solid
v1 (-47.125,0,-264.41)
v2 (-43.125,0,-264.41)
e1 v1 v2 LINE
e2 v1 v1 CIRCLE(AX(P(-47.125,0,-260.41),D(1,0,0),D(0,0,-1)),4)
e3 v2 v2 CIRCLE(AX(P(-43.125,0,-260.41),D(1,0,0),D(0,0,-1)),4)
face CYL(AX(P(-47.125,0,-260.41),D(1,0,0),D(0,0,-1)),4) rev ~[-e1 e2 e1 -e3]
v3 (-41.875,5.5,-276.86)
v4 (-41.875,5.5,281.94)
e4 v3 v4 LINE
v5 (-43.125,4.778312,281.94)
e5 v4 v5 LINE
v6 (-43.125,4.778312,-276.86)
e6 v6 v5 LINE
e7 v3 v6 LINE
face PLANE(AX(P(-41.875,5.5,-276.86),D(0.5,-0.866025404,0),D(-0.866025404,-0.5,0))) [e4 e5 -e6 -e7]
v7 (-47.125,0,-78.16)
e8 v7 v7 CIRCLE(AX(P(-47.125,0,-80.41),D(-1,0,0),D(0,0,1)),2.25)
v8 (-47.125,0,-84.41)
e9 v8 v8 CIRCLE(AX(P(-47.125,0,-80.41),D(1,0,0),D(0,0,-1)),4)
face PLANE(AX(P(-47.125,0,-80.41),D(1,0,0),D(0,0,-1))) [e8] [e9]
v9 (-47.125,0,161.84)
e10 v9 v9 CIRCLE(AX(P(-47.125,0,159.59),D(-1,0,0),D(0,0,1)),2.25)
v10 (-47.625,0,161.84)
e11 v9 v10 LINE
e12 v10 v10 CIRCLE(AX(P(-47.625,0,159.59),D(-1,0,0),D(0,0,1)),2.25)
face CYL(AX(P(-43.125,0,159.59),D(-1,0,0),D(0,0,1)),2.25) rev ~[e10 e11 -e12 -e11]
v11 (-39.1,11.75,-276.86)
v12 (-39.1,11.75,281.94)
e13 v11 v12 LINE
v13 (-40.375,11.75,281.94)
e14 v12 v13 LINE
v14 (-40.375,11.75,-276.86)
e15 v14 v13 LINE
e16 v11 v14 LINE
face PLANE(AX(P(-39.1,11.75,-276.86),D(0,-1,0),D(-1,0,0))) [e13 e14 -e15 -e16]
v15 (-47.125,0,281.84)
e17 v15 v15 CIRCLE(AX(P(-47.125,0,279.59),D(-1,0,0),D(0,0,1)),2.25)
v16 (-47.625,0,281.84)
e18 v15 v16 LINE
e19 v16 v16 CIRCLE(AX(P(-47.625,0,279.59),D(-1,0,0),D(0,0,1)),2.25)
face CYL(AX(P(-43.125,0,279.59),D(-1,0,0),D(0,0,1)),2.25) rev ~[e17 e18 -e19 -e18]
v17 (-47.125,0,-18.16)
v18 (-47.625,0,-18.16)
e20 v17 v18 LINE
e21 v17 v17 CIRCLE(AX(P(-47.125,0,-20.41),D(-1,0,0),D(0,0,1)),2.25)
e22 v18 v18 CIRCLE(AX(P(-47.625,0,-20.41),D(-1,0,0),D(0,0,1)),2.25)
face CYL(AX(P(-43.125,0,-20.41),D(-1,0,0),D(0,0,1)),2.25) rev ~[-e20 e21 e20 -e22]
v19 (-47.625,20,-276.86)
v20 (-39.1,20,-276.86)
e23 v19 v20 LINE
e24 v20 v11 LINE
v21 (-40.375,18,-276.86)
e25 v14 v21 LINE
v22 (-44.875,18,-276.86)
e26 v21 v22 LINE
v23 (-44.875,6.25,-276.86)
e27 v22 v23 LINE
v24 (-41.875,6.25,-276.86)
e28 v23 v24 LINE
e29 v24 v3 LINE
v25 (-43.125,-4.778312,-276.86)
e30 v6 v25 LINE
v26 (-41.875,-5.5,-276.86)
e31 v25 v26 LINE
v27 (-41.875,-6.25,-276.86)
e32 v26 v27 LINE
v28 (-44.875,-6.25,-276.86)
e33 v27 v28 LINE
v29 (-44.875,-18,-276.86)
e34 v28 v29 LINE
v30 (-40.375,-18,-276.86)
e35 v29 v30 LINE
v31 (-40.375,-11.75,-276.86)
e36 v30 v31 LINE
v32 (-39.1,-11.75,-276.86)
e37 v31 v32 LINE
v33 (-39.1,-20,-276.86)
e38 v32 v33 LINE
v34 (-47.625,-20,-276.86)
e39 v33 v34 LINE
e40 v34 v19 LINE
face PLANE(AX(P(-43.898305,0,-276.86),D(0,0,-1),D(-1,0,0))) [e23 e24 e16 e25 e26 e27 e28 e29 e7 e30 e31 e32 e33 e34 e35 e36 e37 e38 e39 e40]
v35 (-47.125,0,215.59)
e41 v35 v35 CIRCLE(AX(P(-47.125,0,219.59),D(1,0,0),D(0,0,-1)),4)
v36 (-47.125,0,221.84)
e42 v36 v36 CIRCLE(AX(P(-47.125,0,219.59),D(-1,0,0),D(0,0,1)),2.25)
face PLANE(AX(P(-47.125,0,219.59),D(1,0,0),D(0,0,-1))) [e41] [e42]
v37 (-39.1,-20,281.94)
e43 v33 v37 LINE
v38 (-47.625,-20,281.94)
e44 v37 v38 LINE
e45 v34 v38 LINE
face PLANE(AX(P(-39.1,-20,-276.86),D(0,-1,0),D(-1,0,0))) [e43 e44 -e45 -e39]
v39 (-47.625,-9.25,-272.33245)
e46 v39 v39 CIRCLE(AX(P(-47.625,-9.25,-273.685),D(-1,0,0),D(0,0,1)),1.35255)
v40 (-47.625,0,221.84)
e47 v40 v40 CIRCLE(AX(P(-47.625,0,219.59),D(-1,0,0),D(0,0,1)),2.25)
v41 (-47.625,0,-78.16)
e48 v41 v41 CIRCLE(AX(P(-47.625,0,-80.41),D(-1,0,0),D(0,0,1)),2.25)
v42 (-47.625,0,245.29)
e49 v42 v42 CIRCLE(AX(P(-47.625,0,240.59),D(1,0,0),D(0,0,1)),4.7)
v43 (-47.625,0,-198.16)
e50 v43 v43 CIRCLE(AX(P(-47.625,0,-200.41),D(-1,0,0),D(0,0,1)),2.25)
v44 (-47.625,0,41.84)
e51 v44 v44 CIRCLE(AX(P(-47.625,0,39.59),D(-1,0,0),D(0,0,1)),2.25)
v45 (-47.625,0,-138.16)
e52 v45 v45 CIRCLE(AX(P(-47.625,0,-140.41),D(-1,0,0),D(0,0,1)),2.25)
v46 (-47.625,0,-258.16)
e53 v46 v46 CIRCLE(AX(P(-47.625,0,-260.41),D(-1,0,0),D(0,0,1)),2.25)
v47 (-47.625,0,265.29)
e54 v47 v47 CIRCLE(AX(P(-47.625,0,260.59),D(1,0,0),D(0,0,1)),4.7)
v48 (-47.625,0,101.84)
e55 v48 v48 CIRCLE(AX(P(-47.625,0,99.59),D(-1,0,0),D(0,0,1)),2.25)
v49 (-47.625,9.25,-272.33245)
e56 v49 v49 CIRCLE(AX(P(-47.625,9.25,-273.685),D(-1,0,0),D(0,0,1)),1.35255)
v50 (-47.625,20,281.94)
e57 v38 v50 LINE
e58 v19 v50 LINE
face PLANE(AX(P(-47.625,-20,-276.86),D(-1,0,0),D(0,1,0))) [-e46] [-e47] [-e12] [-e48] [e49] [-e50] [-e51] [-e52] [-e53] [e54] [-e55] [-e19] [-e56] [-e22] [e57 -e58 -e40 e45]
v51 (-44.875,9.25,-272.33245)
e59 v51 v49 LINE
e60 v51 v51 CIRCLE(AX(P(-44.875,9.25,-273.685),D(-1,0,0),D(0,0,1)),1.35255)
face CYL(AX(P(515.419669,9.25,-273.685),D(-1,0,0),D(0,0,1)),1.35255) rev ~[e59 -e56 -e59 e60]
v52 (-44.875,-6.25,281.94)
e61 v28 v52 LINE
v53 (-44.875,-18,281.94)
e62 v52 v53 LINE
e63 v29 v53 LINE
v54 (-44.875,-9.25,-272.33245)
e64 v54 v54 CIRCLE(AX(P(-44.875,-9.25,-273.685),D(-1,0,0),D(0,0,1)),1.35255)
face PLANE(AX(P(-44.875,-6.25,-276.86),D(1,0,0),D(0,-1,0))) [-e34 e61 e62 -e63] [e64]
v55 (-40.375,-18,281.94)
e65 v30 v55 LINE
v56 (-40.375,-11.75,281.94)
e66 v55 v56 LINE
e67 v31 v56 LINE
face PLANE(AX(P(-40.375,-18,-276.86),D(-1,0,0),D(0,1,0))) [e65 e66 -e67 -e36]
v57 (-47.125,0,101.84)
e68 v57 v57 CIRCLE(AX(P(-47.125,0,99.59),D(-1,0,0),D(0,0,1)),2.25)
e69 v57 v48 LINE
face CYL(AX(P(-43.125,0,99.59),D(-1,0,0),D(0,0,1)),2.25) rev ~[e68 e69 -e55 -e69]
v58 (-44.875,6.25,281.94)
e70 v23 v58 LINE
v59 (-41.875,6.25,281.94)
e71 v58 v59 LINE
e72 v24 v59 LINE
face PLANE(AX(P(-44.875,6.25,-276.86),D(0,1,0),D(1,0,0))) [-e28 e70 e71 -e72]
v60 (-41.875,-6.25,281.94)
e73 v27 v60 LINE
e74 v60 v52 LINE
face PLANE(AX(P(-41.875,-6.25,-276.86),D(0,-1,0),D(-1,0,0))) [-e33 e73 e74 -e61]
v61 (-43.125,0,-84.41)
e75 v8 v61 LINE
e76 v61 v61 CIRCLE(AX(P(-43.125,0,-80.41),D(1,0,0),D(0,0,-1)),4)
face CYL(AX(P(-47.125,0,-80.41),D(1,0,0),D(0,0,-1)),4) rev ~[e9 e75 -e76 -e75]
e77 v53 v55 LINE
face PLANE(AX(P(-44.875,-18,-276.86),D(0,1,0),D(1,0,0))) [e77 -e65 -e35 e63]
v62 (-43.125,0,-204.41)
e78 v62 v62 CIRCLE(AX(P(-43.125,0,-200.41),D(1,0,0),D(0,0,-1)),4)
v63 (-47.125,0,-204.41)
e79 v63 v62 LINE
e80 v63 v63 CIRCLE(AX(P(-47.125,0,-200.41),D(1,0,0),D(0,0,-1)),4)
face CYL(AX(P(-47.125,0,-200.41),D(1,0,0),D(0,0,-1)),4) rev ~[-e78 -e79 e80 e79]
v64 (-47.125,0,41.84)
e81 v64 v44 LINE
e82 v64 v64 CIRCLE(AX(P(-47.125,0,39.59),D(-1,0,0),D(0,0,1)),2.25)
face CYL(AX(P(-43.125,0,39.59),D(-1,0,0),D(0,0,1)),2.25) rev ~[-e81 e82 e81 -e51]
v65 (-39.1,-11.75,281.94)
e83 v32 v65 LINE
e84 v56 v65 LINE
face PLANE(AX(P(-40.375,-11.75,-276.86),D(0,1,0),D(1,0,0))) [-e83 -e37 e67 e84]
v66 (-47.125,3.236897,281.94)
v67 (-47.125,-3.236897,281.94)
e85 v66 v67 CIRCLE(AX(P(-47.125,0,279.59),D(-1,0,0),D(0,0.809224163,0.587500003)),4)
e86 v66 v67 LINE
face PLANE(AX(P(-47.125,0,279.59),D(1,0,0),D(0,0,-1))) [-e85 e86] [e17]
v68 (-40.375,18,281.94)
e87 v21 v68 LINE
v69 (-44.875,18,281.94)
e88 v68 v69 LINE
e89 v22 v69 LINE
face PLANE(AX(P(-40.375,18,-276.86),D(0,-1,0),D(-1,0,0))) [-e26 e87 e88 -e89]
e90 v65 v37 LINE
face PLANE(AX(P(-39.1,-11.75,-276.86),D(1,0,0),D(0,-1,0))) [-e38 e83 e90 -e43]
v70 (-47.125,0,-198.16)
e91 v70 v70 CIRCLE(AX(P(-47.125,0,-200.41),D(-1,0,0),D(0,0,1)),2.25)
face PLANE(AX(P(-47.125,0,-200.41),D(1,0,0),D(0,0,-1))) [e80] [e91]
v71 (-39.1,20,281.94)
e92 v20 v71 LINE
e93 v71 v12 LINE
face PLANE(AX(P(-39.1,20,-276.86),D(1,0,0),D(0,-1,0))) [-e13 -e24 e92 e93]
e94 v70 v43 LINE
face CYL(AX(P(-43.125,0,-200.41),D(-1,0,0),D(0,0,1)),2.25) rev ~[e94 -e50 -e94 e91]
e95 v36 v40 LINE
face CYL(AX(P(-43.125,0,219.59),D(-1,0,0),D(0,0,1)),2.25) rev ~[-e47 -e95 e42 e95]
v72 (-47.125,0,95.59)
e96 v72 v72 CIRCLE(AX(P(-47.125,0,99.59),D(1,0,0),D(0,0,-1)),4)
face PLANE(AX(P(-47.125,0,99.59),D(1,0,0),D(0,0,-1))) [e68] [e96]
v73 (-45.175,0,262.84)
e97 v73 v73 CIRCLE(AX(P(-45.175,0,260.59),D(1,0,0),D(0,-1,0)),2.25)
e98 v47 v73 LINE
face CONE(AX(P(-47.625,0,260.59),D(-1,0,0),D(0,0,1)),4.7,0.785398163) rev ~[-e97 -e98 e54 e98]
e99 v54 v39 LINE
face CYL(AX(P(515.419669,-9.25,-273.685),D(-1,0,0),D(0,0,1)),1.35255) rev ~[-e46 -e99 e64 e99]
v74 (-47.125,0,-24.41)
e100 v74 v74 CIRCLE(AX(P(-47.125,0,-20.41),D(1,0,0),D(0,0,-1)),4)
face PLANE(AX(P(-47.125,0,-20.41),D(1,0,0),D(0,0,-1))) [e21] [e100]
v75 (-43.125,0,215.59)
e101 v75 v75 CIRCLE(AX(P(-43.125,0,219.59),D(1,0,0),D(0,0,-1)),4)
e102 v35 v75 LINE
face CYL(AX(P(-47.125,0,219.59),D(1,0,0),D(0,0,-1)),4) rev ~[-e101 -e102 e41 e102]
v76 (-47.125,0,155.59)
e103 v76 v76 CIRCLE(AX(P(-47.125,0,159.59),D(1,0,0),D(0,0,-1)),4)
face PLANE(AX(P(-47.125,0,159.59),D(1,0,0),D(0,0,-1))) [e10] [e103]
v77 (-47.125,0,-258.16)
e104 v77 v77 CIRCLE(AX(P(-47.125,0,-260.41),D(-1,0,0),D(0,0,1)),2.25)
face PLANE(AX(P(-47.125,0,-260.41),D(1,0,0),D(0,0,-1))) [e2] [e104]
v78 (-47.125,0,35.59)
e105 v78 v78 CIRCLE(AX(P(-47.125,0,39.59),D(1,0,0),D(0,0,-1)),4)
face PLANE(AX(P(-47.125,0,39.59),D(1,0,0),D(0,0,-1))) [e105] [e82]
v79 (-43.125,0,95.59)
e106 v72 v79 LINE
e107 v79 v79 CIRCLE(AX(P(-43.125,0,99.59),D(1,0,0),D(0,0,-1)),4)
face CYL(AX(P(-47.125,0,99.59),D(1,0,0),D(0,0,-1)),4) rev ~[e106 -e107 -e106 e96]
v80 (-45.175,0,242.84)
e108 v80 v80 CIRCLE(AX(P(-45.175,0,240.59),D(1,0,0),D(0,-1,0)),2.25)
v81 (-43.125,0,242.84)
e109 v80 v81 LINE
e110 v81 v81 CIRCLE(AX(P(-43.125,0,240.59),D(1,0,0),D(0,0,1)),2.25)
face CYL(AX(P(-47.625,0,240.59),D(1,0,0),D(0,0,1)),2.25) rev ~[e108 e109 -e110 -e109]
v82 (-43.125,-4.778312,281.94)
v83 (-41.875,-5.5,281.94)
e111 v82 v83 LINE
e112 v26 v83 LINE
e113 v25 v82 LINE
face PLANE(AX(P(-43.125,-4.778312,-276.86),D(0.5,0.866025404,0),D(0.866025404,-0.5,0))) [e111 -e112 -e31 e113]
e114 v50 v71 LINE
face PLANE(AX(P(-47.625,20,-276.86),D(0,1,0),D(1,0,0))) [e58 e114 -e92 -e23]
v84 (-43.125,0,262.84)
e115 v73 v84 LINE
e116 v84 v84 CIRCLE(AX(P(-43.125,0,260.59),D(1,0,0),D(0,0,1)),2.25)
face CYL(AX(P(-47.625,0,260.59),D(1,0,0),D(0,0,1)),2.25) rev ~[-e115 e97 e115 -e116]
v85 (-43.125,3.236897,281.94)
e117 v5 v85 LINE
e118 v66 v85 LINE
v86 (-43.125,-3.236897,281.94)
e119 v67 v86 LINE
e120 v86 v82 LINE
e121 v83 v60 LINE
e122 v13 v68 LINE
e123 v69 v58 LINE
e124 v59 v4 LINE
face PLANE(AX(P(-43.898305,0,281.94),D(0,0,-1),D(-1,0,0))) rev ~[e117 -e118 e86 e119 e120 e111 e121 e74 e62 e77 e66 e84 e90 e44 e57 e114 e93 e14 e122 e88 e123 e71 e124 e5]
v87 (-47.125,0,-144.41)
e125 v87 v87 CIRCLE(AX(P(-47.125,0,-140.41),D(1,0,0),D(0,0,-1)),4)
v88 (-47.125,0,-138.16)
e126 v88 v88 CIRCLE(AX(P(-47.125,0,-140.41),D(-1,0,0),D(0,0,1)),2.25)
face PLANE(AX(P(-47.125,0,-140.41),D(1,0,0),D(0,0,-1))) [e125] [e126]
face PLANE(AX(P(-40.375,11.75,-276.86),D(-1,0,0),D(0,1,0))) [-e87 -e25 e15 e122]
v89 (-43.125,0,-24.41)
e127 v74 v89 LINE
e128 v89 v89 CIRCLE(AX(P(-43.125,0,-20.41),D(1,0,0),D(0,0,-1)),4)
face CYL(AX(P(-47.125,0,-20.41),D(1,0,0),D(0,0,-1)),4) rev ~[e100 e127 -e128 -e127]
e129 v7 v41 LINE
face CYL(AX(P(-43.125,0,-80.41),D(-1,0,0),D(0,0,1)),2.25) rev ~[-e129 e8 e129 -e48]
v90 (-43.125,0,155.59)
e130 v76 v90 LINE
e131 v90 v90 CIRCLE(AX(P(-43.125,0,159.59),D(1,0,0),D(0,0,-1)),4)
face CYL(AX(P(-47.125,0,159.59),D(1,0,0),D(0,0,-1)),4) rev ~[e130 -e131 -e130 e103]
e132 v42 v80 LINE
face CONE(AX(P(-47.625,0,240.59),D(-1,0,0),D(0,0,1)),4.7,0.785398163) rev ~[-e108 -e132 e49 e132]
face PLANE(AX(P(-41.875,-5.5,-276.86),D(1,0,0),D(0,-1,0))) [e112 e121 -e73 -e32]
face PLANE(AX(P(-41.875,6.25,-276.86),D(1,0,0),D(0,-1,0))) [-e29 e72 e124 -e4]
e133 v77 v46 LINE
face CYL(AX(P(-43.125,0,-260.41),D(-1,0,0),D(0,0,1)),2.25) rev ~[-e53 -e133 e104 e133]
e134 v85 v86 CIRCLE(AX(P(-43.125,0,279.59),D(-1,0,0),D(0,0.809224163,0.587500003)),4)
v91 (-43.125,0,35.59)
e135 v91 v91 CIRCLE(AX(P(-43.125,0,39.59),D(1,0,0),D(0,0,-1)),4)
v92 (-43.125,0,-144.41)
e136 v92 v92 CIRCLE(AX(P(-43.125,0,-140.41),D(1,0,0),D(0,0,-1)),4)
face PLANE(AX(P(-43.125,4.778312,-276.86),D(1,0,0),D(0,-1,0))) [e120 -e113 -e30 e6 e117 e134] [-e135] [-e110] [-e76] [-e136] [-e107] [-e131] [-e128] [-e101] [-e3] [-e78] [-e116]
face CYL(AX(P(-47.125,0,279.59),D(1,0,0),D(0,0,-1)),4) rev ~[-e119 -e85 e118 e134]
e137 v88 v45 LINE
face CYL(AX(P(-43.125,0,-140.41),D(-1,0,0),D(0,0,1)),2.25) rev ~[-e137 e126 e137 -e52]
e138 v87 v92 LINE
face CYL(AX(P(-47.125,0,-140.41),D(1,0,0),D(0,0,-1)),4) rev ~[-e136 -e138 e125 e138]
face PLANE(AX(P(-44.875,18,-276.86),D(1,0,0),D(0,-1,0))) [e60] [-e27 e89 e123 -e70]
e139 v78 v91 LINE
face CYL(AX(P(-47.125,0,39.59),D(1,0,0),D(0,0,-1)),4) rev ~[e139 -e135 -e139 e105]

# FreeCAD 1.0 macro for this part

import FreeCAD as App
import Part
import Sketcher
from FreeCAD import Vector
Q = App.Units.Quantity


def add_polygon(sketch, points):
    """Adds a closed chain of lines whose ends are joined by coincident constraints."""
    first, n = sketch.GeometryCount, len(points)
    for a, b in zip(points, points[1:] + points[:1]):
        sketch.addGeometry(Part.LineSegment(App.Vector(*a, 0), App.Vector(*b, 0)), False)
    for i in range(n):
        sketch.addConstraint(Sketcher.Constraint("Coincident", first + i, 2, first + (i + 1) % n, 1))

doc = App.newDocument("Part")
body = doc.addObject("PartDesign::Body", "Body")

sketch1 = body.newObject("Sketcher::SketchObject", "Sketch")
sketch1.AttachmentSupport = (doc.getObject("XY_Plane"), [""])
sketch1.MapMode = "FlatFace"
add_polygon(sketch1, [(-39.1, 11.8), (-39.1, 20), (-47.6, 20), (-47.6, -20), (-39.1, -20), (-39.1, -11.8), (-40.4, -11.8), (-40.4, -18), (-44.9, -18), (-44.9, -6.2), (-41.9, -6.2), (-41.9, -5.5), (-43.1, -4.8), (-43.1, 4.8), (-41.9, 5.5), (-41.9, 6.2), (-44.9, 6.2), (-44.9, 18), (-40.4, 18), (-40.4, 11.8)])
sketch1.addConstraint(Sketcher.Constraint("Vertical", 0))
sketch1.addConstraint(Sketcher.Constraint("Horizontal", 1))
sketch1.addConstraint(Sketcher.Constraint("Vertical", 2))
sketch1.addConstraint(Sketcher.Constraint("Horizontal", 3))
sketch1.addConstraint(Sketcher.Constraint("Vertical", 4))
sketch1.addConstraint(Sketcher.Constraint("Horizontal", 5))
sketch1.addConstraint(Sketcher.Constraint("Vertical", 6))
sketch1.addConstraint(Sketcher.Constraint("Horizontal", 7))
sketch1.addConstraint(Sketcher.Constraint("Vertical", 8))
sketch1.addConstraint(Sketcher.Constraint("Horizontal", 9))
sketch1.addConstraint(Sketcher.Constraint("Vertical", 10))
sketch1.addConstraint(Sketcher.Constraint("Vertical", 12))
sketch1.addConstraint(Sketcher.Constraint("Vertical", 14))
sketch1.addConstraint(Sketcher.Constraint("Horizontal", 15))
sketch1.addConstraint(Sketcher.Constraint("Vertical", 16))
sketch1.addConstraint(Sketcher.Constraint("Horizontal", 17))
sketch1.addConstraint(Sketcher.Constraint("Vertical", 18))
sketch1.addConstraint(Sketcher.Constraint("Horizontal", 19))
sketch1.addConstraint(Sketcher.Constraint("Symmetric", 0, 2, 3, 2, -1))
sketch1.addConstraint(Sketcher.Constraint("Symmetric", 10, 2, 13, 2, -1))
sketch1.addConstraint(Sketcher.Constraint("Symmetric", 8, 2, 15, 2, -1))
sketch1.addConstraint(Sketcher.Constraint("Symmetric", 6, 2, 17, 2, -1))
sketch1.addConstraint(Sketcher.Constraint("Equal", 0, 4))
sketch1.addConstraint(Sketcher.Constraint("Equal", 11, 13))
sketch1.addConstraint(Sketcher.Constraint("DistanceX", 9, 1, 9, 2, Q("3 mm")))
sketch1.addConstraint(Sketcher.Constraint("DistanceY", 2, 2, 2, 1, Q("40 mm")))
sketch1.addConstraint(Sketcher.Constraint("Angle", 11, Q("150 deg")))
sketch1.addConstraint(Sketcher.Constraint("DistanceX", 7, 2, 7, 1, Q("4.5 mm")))
sketch1.addConstraint(Sketcher.Constraint("DistanceY", 6, 2, -1, 1, Q("18 mm")))
sketch1.addConstraint(Sketcher.Constraint("DistanceY", 10, 2, 13, 2, Q("11 mm")))
sketch1.addConstraint(Sketcher.Constraint("DistanceY", 0, 1, 0, 2, Q("8.25 mm")))
sketch1.addConstraint(Sketcher.Constraint("DistanceY", 8, 1, 8, 2, Q("11.75 mm")))
sketch1.addConstraint(Sketcher.Constraint("DistanceX", 0, 2, -1, 1, Q("39.1 mm")))
sketch1.addConstraint(Sketcher.Constraint("DistanceX", 1, 2, 1, 1, Q("8.525 mm")))
sketch1.addConstraint(Sketcher.Constraint("DistanceX", 5, 2, 5, 1, Q("1.275 mm")))
sketch1.addConstraint(Sketcher.Constraint("DistanceX", 11, 2, 10, 2, Q("1.25 mm")))
pad1 = body.newObject("PartDesign::Pad", "Pad")
pad1.Profile = sketch1
pad1.Type = "TwoLengths"
pad1.Length = 281.94
pad1.Length2 = 276.86

sketch2 = body.newObject("Sketcher::SketchObject", "Sketch001")
sketch2.AttachmentSupport = (doc.getObject("YZ_Plane"), [""])
sketch2.MapMode = "FlatFace"
sketch2.AttachmentOffset = App.Placement(Vector(0, 0, -43.125), App.Rotation())
sketch2.addGeometry(Part.Circle(Vector(0, 219.6, 0), Vector(0, 0, 1), 2.2), False)
sketch2.addConstraint(Sketcher.Constraint("PointOnObject", 0, 3, -2))
sketch2.addConstraint(Sketcher.Constraint("Diameter", 0, Q("4.5 mm")))
sketch2.addConstraint(Sketcher.Constraint("DistanceY", -1, 1, 0, 3, Q("219.59 mm")))
doc.recompute()
hole = body.newObject("PartDesign::Hole", "Hole")
hole.Profile = sketch2
hole.ThreadType = "None"
hole.Diameter = 4.5
hole.DepthType = "ThroughAll"
hole.HoleCutType = "Counterbore"
hole.HoleCutDiameter = 8
hole.HoleCutDepth = 4

sketch3 = body.newObject("Sketcher::SketchObject", "Sketch002")
sketch3.AttachmentSupport = (doc.getObject("YZ_Plane"), [""])
sketch3.MapMode = "FlatFace"
sketch3.AttachmentOffset = App.Placement(Vector(0, 0, -47.625), App.Rotation())
sketch3.addGeometry(Part.Circle(Vector(0, 240.6, 0), Vector(0, 0, 1), 2.2), False)
sketch3.addGeometry(Part.Circle(Vector(0, 260.6, 0), Vector(0, 0, 1), 2.2), False)
sketch3.addConstraint(Sketcher.Constraint("Equal", 0, 1))
sketch3.addConstraint(Sketcher.Constraint("PointOnObject", 0, 3, -2))
sketch3.addConstraint(Sketcher.Constraint("PointOnObject", 1, 3, -2))
sketch3.addConstraint(Sketcher.Constraint("Diameter", 0, Q("4.5 mm")))
sketch3.addConstraint(Sketcher.Constraint("DistanceY", 0, 3, 1, 3, Q("20 mm")))
sketch3.addConstraint(Sketcher.Constraint("DistanceY", -1, 1, 0, 3, Q("240.59 mm")))
doc.recompute()
hole2 = body.newObject("PartDesign::Hole", "Hole001")
hole2.Profile = sketch3
hole2.ThreadType = "None"
hole2.Diameter = 4.5
hole2.DepthType = "ThroughAll"
hole2.HoleCutType = "Countersink"
hole2.HoleCutDiameter = 9.4
hole2.HoleCutCountersinkAngle = 90
hole2.Reversed = True
doc.recompute()

linearpattern = body.newObject("PartDesign::LinearPattern", "LinearPattern")
linearpattern.Originals = [hole]
linearpattern.Direction = (doc.getObject("Z_Axis"), [""])
linearpattern.Mode = "offset"
linearpattern.Offset = 60
linearpattern.Occurrences = 9
linearpattern.Reversed = True
body.Tip = linearpattern
doc.recompute()

linearpattern2 = body.newObject("PartDesign::LinearPattern", "LinearPattern001")
linearpattern2.Originals = [hole]
linearpattern2.Direction = (doc.getObject("Z_Axis"), [""])
linearpattern2.Mode = "offset"
linearpattern2.Offset = 60
linearpattern2.Occurrences = 2
body.Tip = linearpattern2

sketch4 = body.newObject("Sketcher::SketchObject", "Sketch003")
sketch4.AttachmentSupport = (doc.getObject("YZ_Plane"), [""])
sketch4.MapMode = "FlatFace"
sketch4.AttachmentOffset = App.Placement(Vector(0, 0, -44.875), App.Rotation())
sketch4.addGeometry(Part.Circle(Vector(-9.3, -273.7, 0), Vector(0, 0, 1), 1.4), False)
sketch4.addGeometry(Part.Circle(Vector(9.3, -273.7, 0), Vector(0, 0, 1), 1.4), False)
sketch4.addConstraint(Sketcher.Constraint("Equal", 0, 1))
sketch4.addConstraint(Sketcher.Constraint("Symmetric", 0, 3, 1, 3, -2))
sketch4.addConstraint(Sketcher.Constraint("Diameter", 0, Q("2.7051 mm")))
sketch4.addConstraint(Sketcher.Constraint("DistanceX", 0, 3, 1, 3, Q("18.5 mm")))
sketch4.addConstraint(Sketcher.Constraint("DistanceY", 0, 3, -1, 1, Q("273.685 mm")))
doc.recompute()
hole3 = body.newObject("PartDesign::Hole", "Hole002")
hole3.Profile = sketch4
hole3.ThreadType = "None"
hole3.Diameter = 2.7051
hole3.DepthType = "ThroughAll"

doc.recompute()
